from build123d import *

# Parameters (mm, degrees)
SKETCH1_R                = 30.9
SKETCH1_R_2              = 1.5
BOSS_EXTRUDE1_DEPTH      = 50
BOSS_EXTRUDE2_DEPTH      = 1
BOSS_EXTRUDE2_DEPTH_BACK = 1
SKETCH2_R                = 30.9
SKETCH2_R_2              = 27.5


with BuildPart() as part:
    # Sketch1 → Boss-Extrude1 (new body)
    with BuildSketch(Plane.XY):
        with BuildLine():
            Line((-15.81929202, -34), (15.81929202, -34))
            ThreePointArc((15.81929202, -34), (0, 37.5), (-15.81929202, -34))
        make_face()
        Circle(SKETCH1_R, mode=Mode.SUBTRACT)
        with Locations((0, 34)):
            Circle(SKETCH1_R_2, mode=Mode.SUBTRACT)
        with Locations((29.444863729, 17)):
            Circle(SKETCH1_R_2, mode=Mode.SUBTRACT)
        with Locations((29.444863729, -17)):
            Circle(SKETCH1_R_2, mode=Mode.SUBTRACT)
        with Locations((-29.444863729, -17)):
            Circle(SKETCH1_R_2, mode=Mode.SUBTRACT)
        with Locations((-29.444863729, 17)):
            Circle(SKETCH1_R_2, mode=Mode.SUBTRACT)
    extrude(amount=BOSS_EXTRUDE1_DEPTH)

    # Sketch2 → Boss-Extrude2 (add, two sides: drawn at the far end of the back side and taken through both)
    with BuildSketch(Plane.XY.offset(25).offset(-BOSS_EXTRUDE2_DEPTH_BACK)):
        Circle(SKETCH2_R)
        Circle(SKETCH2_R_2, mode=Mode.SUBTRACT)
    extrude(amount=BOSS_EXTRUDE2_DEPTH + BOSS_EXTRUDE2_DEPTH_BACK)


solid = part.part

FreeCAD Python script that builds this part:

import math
import FreeCAD as App
import Part
import Sketcher
Q = App.Units.Quantity

doc = App.newDocument("Part")
body = doc.addObject("PartDesign::Body", "Body")

# Sketch on XY plane
sketch1 = doc.addObject("Sketcher::SketchObject", "Sketch")
body.addObject(sketch1)
sketch1.AttachmentSupport = (doc.XY_Plane, [""])
sketch1.MapMode = "FlatFace"
sketch1.addGeometry([
    Part.LineSegment(App.Vector(-15.8, -34, 0), App.Vector(15.8, -34, 0)),  # 0
    Part.ArcOfCircle(Part.Circle(App.Vector(0, 0, 0), App.Vector(0, 0, 1), 37.5), math.radians(-65), math.radians(245)),  # 1
    Part.Circle(App.Vector(-29.4, -17, 0), App.Vector(0, 0, 1), 1.5),  # 2
    Part.Circle(App.Vector(29.4, -17, 0), App.Vector(0, 0, 1), 1.5),  # 3
    Part.Circle(App.Vector(0, 0, 0), App.Vector(0, 0, 1), 30.9),  # 4
    Part.Circle(App.Vector(-29.4, 17, 0), App.Vector(0, 0, 1), 1.5),  # 5
    Part.Circle(App.Vector(29.4, 17, 0), App.Vector(0, 0, 1), 1.5),  # 6
    Part.Circle(App.Vector(0, 34, 0), App.Vector(0, 0, 1), 1.5),  # 7
], False)
sketch1.addConstraint([
    Sketcher.Constraint("Coincident", 0, 1, 1, 2),
    Sketcher.Constraint("Coincident", 1, 1, 0, 2),
    Sketcher.Constraint("Horizontal", 0),
    Sketcher.Constraint("Coincident", 1, 3, -1, 1),
    Sketcher.Constraint("Coincident", 4, 3, -1, 1),
    Sketcher.Constraint("Equal", 2, 3),
    Sketcher.Constraint("Equal", 3, 5),
    Sketcher.Constraint("Equal", 5, 6),
    Sketcher.Constraint("Equal", 6, 7),
    Sketcher.Constraint("Symmetric", 3, 3, 5, 3, -1, 1),
    Sketcher.Constraint("Symmetric", 2, 3, 6, 3, -1, 1),
    Sketcher.Constraint("Symmetric", 2, 3, 3, 3, -2),
    Sketcher.Constraint("PointOnObject", 7, 3, -2),
    Sketcher.Constraint("Diameter", 2, Q("3 mm")),
    Sketcher.Constraint("Diameter", 4, Q("61.8 mm")),
    Sketcher.Constraint("Radius", 1, Q("37.5 mm")),
    Sketcher.Constraint("DistanceY", 2, 3, -1, 1, Q("17 mm")),
    Sketcher.Constraint("DistanceY", -1, 1, 7, 3, Q("34 mm")),
    Sketcher.Constraint("DistanceY", 0, 1, -1, 1, Q("34 mm")),
    Sketcher.Constraint("DistanceX", 2, 3, 0, 1, Q("13.625572 mm")),
])
pad1 = doc.addObject("PartDesign::Pad", "Pad")
body.addObject(pad1)
pad1.Profile = sketch1
pad1.Length = 50

# Sketch on XY plane
sketch2 = doc.addObject("Sketcher::SketchObject", "Sketch001")
body.addObject(sketch2)
sketch2.AttachmentSupport = (doc.XY_Plane, [""])
sketch2.MapMode = "FlatFace"
sketch2.AttachmentOffset = App.Placement(App.Vector(0, 0, 25), App.Rotation())
sketch2.addGeometry([
    Part.Circle(App.Vector(0, 0, 0), App.Vector(0, 0, 1), 31),
    Part.Circle(App.Vector(0, 0, 0), App.Vector(0, 0, 1), 28),
], False)
sketch2.addConstraint([
    Sketcher.Constraint("Coincident", 0, 3, -1, 1),
    Sketcher.Constraint("Coincident", 1, 3, -1, 1),
    Sketcher.Constraint("Diameter", 1, Q("55 mm")),
    Sketcher.Constraint("Diameter", 0, Q("61.8 mm")),
])
pad2 = doc.addObject("PartDesign::Pad", "Pad001")
body.addObject(pad2)
pad2.Profile = sketch2
pad2.Type = "TwoLengths"
pad2.Length = 1
pad2.Length2 = 1

doc.recompute()
